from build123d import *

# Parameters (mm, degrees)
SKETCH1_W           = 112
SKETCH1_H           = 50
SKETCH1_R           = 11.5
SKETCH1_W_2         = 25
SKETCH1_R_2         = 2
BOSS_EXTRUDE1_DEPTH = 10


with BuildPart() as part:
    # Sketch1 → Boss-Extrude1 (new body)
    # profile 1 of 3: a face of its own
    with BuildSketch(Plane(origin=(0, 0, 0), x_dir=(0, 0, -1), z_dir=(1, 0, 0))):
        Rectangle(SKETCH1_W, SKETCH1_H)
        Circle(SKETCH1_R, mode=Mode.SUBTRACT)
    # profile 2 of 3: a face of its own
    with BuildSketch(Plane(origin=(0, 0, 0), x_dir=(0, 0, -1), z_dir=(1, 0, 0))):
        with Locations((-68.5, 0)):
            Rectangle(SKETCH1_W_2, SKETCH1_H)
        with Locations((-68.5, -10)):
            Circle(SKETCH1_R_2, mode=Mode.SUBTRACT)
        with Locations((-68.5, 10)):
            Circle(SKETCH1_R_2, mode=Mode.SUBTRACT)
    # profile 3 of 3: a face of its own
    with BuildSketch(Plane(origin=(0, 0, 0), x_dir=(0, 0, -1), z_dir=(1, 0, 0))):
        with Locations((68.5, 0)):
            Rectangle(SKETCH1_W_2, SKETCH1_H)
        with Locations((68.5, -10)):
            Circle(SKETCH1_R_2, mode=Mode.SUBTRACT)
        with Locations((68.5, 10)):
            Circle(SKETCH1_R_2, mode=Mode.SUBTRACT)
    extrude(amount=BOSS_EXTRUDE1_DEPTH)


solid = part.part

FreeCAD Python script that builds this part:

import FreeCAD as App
import Part
import Sketcher
Q = App.Units.Quantity

doc = App.newDocument("Part")
body = doc.addObject("PartDesign::Body", "Body")

sketch1 = doc.addObject("Sketcher::SketchObject", "Sketch")
body.addObject(sketch1)
sketch1.AttachmentSupport = (doc.YZ_Plane, [""])
sketch1.MapMode = "FlatFace"
sketch1.addGeometry([
    Part.LineSegment(App.Vector(-25, -81, 0), App.Vector(25, -81, 0)),
    Part.LineSegment(App.Vector(25, -81, 0), App.Vector(25, 81, 0)),
    Part.LineSegment(App.Vector(25, 81, 0), App.Vector(-25, 81, 0)),
    Part.LineSegment(App.Vector(-25, 81, 0), App.Vector(-25, -81, 0)),
    Part.Circle(App.Vector(0, 0, 0), App.Vector(0, 0, 1), 11.5),
    Part.Circle(App.Vector(10, 68.5, 0), App.Vector(0, 0, 1), 2),
    Part.Circle(App.Vector(-10, 68.5, 0), App.Vector(0, 0, 1), 2),
    Part.Circle(App.Vector(10, -68.5, 0), App.Vector(0, 0, 1), 2),
    Part.Circle(App.Vector(-10, -68.5, 0), App.Vector(0, 0, 1), 2),
], False)
sketch1.addConstraint([
    Sketcher.Constraint("Coincident", 0, 2, 1, 1),
    Sketcher.Constraint("Coincident", 1, 2, 2, 1),
    Sketcher.Constraint("Coincident", 2, 2, 3, 1),
    Sketcher.Constraint("Coincident", 3, 2, 0, 1),
    Sketcher.Constraint("Horizontal", 0),
    Sketcher.Constraint("Vertical", 1),
    Sketcher.Constraint("Horizontal", 2),
    Sketcher.Constraint("Vertical", 3),
    Sketcher.Constraint("Coincident", 4, 3, -1, 1),
    Sketcher.Constraint("Equal", 5, 6),
    Sketcher.Constraint("Equal", 6, 7),
    Sketcher.Constraint("Equal", 7, 8),
    Sketcher.Constraint("Symmetric", 6, 3, 7, 3, -1, 1),
    Sketcher.Constraint("Symmetric", 5, 3, 8, 3, -1, 1),
    Sketcher.Constraint("Symmetric", 0, 2, 2, 2, -1, 1),
    Sketcher.Constraint("Symmetric", 5, 3, 6, 3, -2),
    Sketcher.Constraint("Diameter", 4, Q("23 mm")),
    Sketcher.Constraint("Diameter", 5, Q("4 mm")),
    Sketcher.Constraint("DistanceX", 0, 1, 0, 2, Q("50 mm")),
    Sketcher.Constraint("DistanceY", 1, 1, 1, 2, Q("162 mm")),
    Sketcher.Constraint("DistanceX", -1, 1, 5, 3, Q("10 mm")),
    Sketcher.Constraint("DistanceY", 7, 3, 5, 3, Q("137 mm")),
])
pad1 = doc.addObject("PartDesign::Pad", "Pad")
body.addObject(pad1)
pad1.Profile = sketch1
pad1.Length = 10

doc.recompute()
